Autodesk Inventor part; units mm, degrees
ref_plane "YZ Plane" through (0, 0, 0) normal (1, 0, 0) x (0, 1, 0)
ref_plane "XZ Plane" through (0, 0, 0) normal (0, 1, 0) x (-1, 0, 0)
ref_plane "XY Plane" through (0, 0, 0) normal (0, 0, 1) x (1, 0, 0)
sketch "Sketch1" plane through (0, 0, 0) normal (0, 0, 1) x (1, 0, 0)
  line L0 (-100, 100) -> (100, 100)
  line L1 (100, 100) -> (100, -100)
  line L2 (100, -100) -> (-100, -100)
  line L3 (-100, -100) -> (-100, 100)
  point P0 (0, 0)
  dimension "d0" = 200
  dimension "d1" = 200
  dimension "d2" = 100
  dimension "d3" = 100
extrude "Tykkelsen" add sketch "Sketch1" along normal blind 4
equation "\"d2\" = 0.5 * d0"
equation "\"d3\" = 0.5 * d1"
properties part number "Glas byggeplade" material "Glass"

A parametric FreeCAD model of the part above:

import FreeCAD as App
import Part
import Sketcher

doc = App.newDocument("Part")
params = doc.addObject("Spreadsheet::Sheet", "Params")
for row, (alias, value) in enumerate([
    ("sketch1_width", "200 mm"),
    ("pad1_length", "4 mm"),
], start=1):
    params.set(f"A{row}", alias)
    params.set(f"B{row}", "=" + value)
    params.setAlias(f"B{row}", alias)

body = doc.addObject("PartDesign::Body", "Body")

sketch1 = doc.addObject("Sketcher::SketchObject", "Sketch")
body.addObject(sketch1)
sketch1.AttachmentSupport = (doc.XY_Plane, [""])
sketch1.MapMode = "FlatFace"
sketch1.addGeometry(Part.LineSegment(App.Vector(100, 100, 0), App.Vector(-100, 100, 0)), False)
sketch1.addGeometry(Part.LineSegment(App.Vector(-100, 100, 0), App.Vector(-100, -100, 0)), False)
sketch1.addGeometry(Part.LineSegment(App.Vector(-100, -100, 0), App.Vector(100, -100, 0)), False)
sketch1.addGeometry(Part.LineSegment(App.Vector(100, -100, 0), App.Vector(100, 100, 0)), False)
sketch1.addConstraint(Sketcher.Constraint("Coincident", 0, 2, 1, 1))
sketch1.addConstraint(Sketcher.Constraint("Coincident", 1, 2, 2, 1))
sketch1.addConstraint(Sketcher.Constraint("Coincident", 2, 2, 3, 1))
sketch1.addConstraint(Sketcher.Constraint("Coincident", 3, 2, 0, 1))
sketch1.addConstraint(Sketcher.Constraint("Horizontal", 0))
sketch1.addConstraint(Sketcher.Constraint("Vertical", 1))
sketch1.addConstraint(Sketcher.Constraint("Horizontal", 2))
sketch1.addConstraint(Sketcher.Constraint("Vertical", 3))
sketch1.addConstraint(Sketcher.Constraint("Symmetric", 0, 2, 2, 2, -1, 1))
sketch1.addConstraint(Sketcher.Constraint("Equal", 2, 1))
sketch1.addConstraint(Sketcher.Constraint("DistanceX", 0, 2, 0, 1, 200.0))
sketch1.setExpression("Constraints[10]", "Params.sketch1_width")
pad1 = doc.addObject("PartDesign::Pad", "Pad")
body.addObject(pad1)
pad1.Profile = sketch1
pad1.setExpression("Length", "Params.pad1_length")

doc.recompute()
